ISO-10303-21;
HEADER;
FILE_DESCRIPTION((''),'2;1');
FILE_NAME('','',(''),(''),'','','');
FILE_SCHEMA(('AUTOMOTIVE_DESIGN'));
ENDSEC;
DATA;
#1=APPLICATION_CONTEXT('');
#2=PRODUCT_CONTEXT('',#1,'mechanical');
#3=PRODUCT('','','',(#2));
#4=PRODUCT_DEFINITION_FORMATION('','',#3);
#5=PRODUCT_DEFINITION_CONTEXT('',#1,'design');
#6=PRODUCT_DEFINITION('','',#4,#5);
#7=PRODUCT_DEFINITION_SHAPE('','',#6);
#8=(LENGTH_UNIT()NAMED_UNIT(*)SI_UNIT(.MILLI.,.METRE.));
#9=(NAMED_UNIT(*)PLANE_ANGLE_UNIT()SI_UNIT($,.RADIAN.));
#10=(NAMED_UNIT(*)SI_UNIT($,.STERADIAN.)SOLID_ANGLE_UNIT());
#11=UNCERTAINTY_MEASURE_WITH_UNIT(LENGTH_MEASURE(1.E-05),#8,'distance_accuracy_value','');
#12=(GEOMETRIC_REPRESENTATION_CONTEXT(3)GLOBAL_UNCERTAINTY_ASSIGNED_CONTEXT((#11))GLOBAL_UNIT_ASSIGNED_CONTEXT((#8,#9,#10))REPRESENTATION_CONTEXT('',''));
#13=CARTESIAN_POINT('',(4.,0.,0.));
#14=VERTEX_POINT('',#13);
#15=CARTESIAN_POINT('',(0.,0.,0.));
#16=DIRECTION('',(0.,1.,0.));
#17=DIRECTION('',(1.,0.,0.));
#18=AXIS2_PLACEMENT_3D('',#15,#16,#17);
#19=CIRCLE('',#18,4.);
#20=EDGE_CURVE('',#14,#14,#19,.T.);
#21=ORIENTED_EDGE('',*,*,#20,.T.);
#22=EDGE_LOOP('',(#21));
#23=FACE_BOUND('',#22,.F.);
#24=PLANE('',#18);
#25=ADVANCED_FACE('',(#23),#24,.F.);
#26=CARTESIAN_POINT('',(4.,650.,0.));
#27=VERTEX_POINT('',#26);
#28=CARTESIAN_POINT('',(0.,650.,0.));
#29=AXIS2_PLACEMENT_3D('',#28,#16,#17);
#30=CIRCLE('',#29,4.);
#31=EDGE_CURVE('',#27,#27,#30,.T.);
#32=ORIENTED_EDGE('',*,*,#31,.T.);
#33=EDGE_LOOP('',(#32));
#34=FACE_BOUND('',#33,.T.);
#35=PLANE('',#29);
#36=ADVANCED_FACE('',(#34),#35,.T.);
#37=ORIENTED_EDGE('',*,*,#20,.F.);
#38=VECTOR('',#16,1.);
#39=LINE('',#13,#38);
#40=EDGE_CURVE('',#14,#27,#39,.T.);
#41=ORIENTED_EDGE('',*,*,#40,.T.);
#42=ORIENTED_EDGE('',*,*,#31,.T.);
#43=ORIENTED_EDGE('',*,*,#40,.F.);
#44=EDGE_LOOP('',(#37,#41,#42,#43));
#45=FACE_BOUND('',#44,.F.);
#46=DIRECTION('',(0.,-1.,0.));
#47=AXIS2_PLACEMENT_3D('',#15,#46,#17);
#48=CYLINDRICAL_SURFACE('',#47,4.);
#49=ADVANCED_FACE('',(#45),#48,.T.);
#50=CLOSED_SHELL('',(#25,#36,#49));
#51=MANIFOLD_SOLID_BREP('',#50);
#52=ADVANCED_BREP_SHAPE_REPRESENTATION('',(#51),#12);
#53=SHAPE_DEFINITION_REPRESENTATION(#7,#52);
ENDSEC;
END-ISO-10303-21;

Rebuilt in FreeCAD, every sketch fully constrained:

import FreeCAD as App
import Part
import Sketcher

V = App.Vector

doc = App.newDocument("Part")
body = doc.addObject("PartDesign::Body", "Body")

# Sketch on XZ plane
sketch1 = body.newObject("Sketcher::SketchObject", "Sketch")
sketch1.AttachmentSupport = (doc.getObject("XZ_Plane"), [""])
sketch1.MapMode = "FlatFace"
sketch1.addGeometry(Part.Circle(V(0, 0, 0), V(0, 0, 1), 4), False)
sketch1.addConstraint([
    Sketcher.Constraint("Coincident", 0, 3, -1, 1),
    Sketcher.Constraint("Diameter", 0, 8.0),
])
pad1 = body.newObject("PartDesign::Pad", "Pad")
pad1.Profile = sketch1
pad1.Length = 650
pad1.Reversed = True

doc.recompute()
